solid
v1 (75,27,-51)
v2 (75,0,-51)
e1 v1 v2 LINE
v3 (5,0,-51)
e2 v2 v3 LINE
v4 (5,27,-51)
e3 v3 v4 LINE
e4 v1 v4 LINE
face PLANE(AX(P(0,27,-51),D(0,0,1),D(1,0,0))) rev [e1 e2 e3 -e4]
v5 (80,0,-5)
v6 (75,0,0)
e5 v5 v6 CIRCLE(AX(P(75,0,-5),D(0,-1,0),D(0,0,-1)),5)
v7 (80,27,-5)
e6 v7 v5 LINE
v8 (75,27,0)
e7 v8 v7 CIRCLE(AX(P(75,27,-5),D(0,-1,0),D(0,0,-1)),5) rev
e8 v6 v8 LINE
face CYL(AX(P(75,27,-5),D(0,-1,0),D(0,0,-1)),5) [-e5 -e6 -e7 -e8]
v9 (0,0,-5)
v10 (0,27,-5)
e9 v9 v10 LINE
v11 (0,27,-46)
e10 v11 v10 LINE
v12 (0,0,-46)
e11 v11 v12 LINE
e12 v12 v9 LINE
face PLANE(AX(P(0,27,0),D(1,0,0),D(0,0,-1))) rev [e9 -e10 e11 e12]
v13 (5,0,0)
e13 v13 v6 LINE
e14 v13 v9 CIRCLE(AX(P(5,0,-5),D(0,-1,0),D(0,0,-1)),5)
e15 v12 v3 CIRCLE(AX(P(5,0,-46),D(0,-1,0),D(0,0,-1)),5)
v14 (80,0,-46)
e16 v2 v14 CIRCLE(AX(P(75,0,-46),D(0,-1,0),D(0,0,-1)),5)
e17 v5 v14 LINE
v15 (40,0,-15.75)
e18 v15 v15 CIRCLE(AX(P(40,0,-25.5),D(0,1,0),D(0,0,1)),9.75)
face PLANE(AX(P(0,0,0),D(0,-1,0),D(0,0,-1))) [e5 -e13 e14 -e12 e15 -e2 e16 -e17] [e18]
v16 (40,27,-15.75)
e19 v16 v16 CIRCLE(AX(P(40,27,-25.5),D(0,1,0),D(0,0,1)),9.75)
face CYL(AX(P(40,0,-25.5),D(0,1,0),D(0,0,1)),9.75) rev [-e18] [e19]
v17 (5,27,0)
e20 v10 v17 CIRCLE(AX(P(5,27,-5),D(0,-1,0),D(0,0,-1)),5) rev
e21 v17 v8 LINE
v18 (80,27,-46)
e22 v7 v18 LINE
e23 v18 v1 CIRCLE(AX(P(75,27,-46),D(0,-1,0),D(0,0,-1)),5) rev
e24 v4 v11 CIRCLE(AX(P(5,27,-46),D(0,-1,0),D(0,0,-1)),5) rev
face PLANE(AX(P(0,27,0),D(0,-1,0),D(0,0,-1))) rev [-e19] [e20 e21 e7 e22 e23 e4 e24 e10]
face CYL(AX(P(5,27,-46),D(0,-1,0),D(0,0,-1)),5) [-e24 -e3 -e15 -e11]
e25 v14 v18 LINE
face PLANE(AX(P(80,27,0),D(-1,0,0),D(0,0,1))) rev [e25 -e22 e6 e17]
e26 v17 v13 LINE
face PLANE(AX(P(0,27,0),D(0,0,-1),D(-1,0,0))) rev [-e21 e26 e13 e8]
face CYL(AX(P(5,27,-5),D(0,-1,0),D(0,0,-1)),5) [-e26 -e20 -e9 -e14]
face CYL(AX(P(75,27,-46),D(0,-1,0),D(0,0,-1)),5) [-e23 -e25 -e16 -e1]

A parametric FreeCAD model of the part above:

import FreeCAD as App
import Part
import Sketcher
Q = App.Units.Quantity


def edges_at(feature, points):
    """Names of the edges that pass closest to the given points."""
    edges = feature.Shape.Edges
    near = lambda p: min(range(len(edges)), key=lambda i: edges[i].distToShape(Part.Vertex(*p))[0])
    return sorted({f"Edge{near(p) + 1}" for p in points})

doc = App.newDocument("Part")
body = doc.addObject("PartDesign::Body", "Body")

sketch1 = body.newObject("Sketcher::SketchObject", "Sketch")
sketch1.AttachmentSupport = (doc.getObject("XZ_Plane"), [""])
sketch1.MapMode = "FlatFace"
sketch1.addGeometry(Part.LineSegment(App.Vector(0, -51, 0), App.Vector(0, 0, 0)), False)
sketch1.addGeometry(Part.LineSegment(App.Vector(0, 0, 0), App.Vector(80, 0, 0)), False)
sketch1.addGeometry(Part.LineSegment(App.Vector(80, 0, 0), App.Vector(80, -51, 0)), False)
sketch1.addGeometry(Part.LineSegment(App.Vector(80, -51, 0), App.Vector(0, -51, 0)), False)
sketch1.addConstraint(Sketcher.Constraint("Coincident", 0, 2, 1, 1))
sketch1.addConstraint(Sketcher.Constraint("Coincident", 1, 2, 2, 1))
sketch1.addConstraint(Sketcher.Constraint("Coincident", 2, 2, 3, 1))
sketch1.addConstraint(Sketcher.Constraint("Coincident", 3, 2, 0, 1))
sketch1.addConstraint(Sketcher.Constraint("Vertical", 0))
sketch1.addConstraint(Sketcher.Constraint("Horizontal", 1))
sketch1.addConstraint(Sketcher.Constraint("Vertical", 2))
sketch1.addConstraint(Sketcher.Constraint("Horizontal", 3))
sketch1.addConstraint(Sketcher.Constraint("Coincident", 0, 2, -1, 1))
sketch1.addConstraint(Sketcher.Constraint("DistanceX", 1, 1, 1, 2, Q("80 mm")))
sketch1.addConstraint(Sketcher.Constraint("DistanceY", 0, 1, 0, 2, Q("51 mm")))
pad1 = body.newObject("PartDesign::Pad", "Pad")
pad1.Profile = sketch1
pad1.Length = 27
pad1.Reversed = True

sketch2 = body.newObject("Sketcher::SketchObject", "Sketch001")
sketch2.AttachmentSupport = (doc.getObject("XZ_Plane"), [""])
sketch2.MapMode = "FlatFace"
sketch2.AttachmentOffset = App.Placement(App.Vector(0, 0, -27), App.Rotation())
sketch2.addGeometry(Part.Circle(App.Vector(40, -26, 0), App.Vector(0, 0, 1), 10), False)
sketch2.addConstraint(Sketcher.Constraint("Diameter", 0, Q("19.5 mm")))
sketch2.addConstraint(Sketcher.Constraint("DistanceX", -1, 1, 0, 3, Q("40 mm")))
sketch2.addConstraint(Sketcher.Constraint("DistanceY", 0, 3, -1, 1, Q("25.5 mm")))
pocket1 = body.newObject("PartDesign::Pocket", "Pocket")
pocket1.Profile = sketch2
pocket1.Length = 27
pocket1.Reversed = True
doc.recompute()

fillet = body.newObject("PartDesign::Fillet", "Fillet")
fillet.Base = (pocket1, edges_at(pocket1, [
    (0, 13.5, -51),
    (80, 13.5, -51),
    (80, 13.5, 0),
    (0, 13.5, 0),
]))
fillet.Radius = 5

doc.recompute()
